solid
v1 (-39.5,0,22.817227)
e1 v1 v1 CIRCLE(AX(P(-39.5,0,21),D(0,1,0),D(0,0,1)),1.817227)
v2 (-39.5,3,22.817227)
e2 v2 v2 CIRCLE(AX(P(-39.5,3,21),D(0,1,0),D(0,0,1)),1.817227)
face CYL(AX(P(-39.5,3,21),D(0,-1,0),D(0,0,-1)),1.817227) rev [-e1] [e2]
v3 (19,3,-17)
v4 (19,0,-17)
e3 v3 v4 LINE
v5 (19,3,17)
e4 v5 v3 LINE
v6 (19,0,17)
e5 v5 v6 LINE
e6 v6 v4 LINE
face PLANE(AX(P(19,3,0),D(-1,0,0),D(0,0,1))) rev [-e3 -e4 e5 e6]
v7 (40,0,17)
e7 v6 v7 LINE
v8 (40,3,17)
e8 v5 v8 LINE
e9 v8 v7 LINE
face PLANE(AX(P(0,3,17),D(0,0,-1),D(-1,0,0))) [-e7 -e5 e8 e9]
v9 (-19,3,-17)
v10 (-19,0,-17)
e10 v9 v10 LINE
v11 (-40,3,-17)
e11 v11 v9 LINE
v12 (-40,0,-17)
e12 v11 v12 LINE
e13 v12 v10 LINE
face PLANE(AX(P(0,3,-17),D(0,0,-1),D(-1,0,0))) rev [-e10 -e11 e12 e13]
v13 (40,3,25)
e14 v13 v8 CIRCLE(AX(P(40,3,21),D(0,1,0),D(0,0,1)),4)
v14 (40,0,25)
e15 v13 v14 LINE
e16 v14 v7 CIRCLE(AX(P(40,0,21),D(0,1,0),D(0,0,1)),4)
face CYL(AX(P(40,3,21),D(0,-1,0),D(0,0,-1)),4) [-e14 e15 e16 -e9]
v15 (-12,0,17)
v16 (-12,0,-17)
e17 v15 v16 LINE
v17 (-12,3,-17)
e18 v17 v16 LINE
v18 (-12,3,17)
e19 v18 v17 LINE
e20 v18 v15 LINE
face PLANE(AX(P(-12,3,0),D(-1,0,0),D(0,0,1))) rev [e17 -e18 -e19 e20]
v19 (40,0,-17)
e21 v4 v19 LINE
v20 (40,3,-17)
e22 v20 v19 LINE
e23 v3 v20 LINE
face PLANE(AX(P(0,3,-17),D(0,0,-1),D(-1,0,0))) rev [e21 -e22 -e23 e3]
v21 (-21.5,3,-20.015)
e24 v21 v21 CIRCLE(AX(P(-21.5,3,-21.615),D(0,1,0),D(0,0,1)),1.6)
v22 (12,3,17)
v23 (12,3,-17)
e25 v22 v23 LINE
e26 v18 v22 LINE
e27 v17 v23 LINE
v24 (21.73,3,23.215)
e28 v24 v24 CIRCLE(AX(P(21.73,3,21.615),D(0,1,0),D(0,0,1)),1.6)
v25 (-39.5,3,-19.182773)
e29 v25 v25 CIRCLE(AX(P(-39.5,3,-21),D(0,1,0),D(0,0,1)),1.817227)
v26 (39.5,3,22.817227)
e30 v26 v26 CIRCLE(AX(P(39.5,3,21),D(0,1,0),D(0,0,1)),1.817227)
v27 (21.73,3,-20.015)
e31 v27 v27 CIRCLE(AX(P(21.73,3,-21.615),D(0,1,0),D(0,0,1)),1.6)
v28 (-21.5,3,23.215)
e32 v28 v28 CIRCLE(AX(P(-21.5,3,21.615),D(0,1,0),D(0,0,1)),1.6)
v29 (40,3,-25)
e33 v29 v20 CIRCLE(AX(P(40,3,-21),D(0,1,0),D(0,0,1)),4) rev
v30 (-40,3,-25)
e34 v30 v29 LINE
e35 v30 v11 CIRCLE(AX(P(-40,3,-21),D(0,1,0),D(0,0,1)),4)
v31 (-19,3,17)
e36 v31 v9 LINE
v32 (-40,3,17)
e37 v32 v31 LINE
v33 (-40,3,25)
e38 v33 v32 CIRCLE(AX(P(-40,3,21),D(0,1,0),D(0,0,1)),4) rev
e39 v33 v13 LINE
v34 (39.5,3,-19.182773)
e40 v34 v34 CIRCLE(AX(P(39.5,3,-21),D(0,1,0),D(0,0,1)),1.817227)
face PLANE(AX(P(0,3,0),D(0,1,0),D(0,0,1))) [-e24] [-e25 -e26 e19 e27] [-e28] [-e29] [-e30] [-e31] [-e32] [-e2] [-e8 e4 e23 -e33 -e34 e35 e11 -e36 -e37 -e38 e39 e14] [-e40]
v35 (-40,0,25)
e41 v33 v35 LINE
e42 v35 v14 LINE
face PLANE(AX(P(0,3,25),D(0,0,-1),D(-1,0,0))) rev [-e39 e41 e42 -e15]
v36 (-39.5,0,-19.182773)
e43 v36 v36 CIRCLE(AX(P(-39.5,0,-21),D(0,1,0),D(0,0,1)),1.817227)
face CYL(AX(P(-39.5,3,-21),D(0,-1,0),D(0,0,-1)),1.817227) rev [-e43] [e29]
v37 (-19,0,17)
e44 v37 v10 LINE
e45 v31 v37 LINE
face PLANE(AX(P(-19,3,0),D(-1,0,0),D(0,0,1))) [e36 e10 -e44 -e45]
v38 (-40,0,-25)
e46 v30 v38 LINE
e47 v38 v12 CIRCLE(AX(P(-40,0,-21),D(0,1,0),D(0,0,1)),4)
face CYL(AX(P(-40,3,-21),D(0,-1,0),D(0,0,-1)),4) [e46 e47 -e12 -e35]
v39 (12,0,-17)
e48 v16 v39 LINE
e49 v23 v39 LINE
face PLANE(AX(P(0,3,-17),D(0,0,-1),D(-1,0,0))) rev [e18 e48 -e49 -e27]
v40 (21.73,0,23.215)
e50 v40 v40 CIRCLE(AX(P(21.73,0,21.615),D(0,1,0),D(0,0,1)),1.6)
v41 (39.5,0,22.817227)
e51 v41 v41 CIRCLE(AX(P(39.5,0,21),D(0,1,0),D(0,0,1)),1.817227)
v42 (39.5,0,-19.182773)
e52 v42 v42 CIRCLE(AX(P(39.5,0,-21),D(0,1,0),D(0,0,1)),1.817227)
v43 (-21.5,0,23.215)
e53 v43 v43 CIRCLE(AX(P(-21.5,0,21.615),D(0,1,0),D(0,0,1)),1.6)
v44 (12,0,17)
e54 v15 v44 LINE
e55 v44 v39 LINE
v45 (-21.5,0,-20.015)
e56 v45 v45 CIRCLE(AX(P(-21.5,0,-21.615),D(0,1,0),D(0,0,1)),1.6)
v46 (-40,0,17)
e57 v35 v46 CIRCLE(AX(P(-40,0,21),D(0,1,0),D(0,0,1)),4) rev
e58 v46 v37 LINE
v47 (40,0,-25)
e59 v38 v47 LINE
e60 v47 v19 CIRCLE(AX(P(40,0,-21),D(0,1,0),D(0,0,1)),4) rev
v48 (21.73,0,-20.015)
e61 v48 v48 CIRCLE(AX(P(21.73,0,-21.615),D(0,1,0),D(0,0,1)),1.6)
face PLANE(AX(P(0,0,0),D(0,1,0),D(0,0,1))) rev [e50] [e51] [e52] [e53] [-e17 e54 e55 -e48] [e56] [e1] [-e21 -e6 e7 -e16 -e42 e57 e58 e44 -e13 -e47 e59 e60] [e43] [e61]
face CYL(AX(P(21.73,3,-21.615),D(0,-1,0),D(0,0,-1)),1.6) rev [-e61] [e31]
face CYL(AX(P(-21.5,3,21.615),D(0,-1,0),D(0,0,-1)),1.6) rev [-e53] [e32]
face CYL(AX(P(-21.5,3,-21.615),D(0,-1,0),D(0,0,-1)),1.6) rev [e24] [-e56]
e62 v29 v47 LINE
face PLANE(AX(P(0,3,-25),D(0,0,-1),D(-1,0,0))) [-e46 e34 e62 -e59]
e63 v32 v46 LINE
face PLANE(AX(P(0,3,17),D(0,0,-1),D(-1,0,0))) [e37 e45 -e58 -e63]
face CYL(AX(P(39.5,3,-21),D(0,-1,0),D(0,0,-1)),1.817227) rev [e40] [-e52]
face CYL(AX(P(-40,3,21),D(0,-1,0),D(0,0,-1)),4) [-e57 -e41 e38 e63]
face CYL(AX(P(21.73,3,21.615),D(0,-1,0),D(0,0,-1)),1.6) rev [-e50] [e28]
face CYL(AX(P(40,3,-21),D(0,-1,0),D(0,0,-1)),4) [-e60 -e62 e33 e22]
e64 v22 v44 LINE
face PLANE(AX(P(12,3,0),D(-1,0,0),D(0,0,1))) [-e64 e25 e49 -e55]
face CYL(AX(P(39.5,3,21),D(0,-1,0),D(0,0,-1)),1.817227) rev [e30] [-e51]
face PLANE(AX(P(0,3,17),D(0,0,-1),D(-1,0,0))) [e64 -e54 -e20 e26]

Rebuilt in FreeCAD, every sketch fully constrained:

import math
import FreeCAD as App
import Part
import Sketcher
from FreeCAD import Vector
Q = App.Units.Quantity


def add_polygon(sketch, points):
    """Adds a closed chain of lines whose ends are joined by coincident constraints."""
    first, n = sketch.GeometryCount, len(points)
    for a, b in zip(points, points[1:] + points[:1]):
        sketch.addGeometry(Part.LineSegment(App.Vector(*a, 0), App.Vector(*b, 0)), False)
    for i in range(n):
        sketch.addConstraint(Sketcher.Constraint("Coincident", first + i, 2, first + (i + 1) % n, 1))

doc = App.newDocument("Part")
body = doc.addObject("PartDesign::Body", "Body")

sketch1 = body.newObject("Sketcher::SketchObject", "Sketch")
sketch1.AttachmentSupport = (doc.getObject("XZ_Plane"), [""])
sketch1.MapMode = "FlatFace"
sketch1.addGeometry(Part.LineSegment(Vector(19, 17, 0), Vector(19, -17, 0)), False)
sketch1.addGeometry(Part.LineSegment(Vector(19, -17, 0), Vector(40, -17, 0)), False)
sketch1.addGeometry(Part.ArcOfCircle(Part.Circle(Vector(40, -21, 0), Vector(0, 0, 1), 4), math.radians(0), math.radians(90)), False)
sketch1.addGeometry(Part.ArcOfCircle(Part.Circle(Vector(40, -21, 0), Vector(0, 0, 1), 4), math.radians(-90), math.radians(0)), False)
sketch1.addGeometry(Part.LineSegment(Vector(40, -25, 0), Vector(-40, -25, 0)), False)
sketch1.addGeometry(Part.ArcOfCircle(Part.Circle(Vector(-40, -21, 0), Vector(0, 0, 1), 4), math.radians(90), math.radians(270)), False)
sketch1.addGeometry(Part.LineSegment(Vector(-40, -17, 0), Vector(-19, -17, 0)), False)
sketch1.addGeometry(Part.LineSegment(Vector(-19, -17, 0), Vector(-19, 17, 0)), False)
sketch1.addGeometry(Part.LineSegment(Vector(-19, 17, 0), Vector(-40, 17, 0)), False)
sketch1.addGeometry(Part.ArcOfCircle(Part.Circle(Vector(-40, 21, 0), Vector(0, 0, 1), 4), math.radians(90), math.radians(270)), False)
sketch1.addGeometry(Part.LineSegment(Vector(-40, 25, 0), Vector(40, 25, 0)), False)
sketch1.addGeometry(Part.ArcOfCircle(Part.Circle(Vector(40, 21, 0), Vector(0, 0, 1), 4), math.radians(0), math.radians(90)), False)
sketch1.addGeometry(Part.ArcOfCircle(Part.Circle(Vector(40, 21, 0), Vector(0, 0, 1), 4), math.radians(-90), math.radians(0)), False)
sketch1.addGeometry(Part.LineSegment(Vector(40, 17, 0), Vector(19, 17, 0)), False)
sketch1.addGeometry(Part.Circle(Vector(21.73, 21.615, 0), Vector(0, 0, 1), 1.6), False)
sketch1.addGeometry(Part.Circle(Vector(39.5, 21, 0), Vector(0, 0, 1), 1.817227), False)
add_polygon(sketch1, [(12, 17), (-12, 17), (-12, -17), (12, -17)])
sketch1.addGeometry(Part.Circle(Vector(21.73, -21.615, 0), Vector(0, 0, 1), 1.6), False)
sketch1.addGeometry(Part.Circle(Vector(39.5, -21, 0), Vector(0, 0, 1), 1.817227), False)
sketch1.addGeometry(Part.Circle(Vector(-21.5, -21.615, 0), Vector(0, 0, 1), 1.6), False)
sketch1.addGeometry(Part.Circle(Vector(-39.5, -21, 0), Vector(0, 0, 1), 1.817227), False)
sketch1.addGeometry(Part.Circle(Vector(-39.5, 21, 0), Vector(0, 0, 1), 1.817227), False)
sketch1.addGeometry(Part.Circle(Vector(-21.5, 21.615, 0), Vector(0, 0, 1), 1.6), False)
sketch1.addConstraint(Sketcher.Constraint("Coincident", 0, 2, 1, 1))
sketch1.addConstraint(Sketcher.Constraint("Tangent", 1, 2, 2, 2))
sketch1.addConstraint(Sketcher.Constraint("Tangent", 2, 1, 3, 2))
sketch1.addConstraint(Sketcher.Constraint("Tangent", 3, 1, 4, 1))
sketch1.addConstraint(Sketcher.Constraint("Tangent", 4, 2, 5, 2))
sketch1.addConstraint(Sketcher.Constraint("Tangent", 5, 1, 6, 1))
sketch1.addConstraint(Sketcher.Constraint("Coincident", 6, 2, 7, 1))
sketch1.addConstraint(Sketcher.Constraint("Coincident", 7, 2, 8, 1))
sketch1.addConstraint(Sketcher.Constraint("Tangent", 8, 2, 9, 2))
sketch1.addConstraint(Sketcher.Constraint("Tangent", 9, 1, 10, 1))
sketch1.addConstraint(Sketcher.Constraint("Tangent", 10, 2, 11, 2))
sketch1.addConstraint(Sketcher.Constraint("Tangent", 11, 1, 12, 2))
sketch1.addConstraint(Sketcher.Constraint("Tangent", 12, 1, 13, 1))
sketch1.addConstraint(Sketcher.Constraint("Coincident", 13, 2, 0, 1))
sketch1.addConstraint(Sketcher.Constraint("Vertical", 0))
sketch1.addConstraint(Sketcher.Constraint("Horizontal", 1))
sketch1.addConstraint(Sketcher.Constraint("Horizontal", 4))
sketch1.addConstraint(Sketcher.Constraint("Horizontal", 6))
sketch1.addConstraint(Sketcher.Constraint("Vertical", 7))
sketch1.addConstraint(Sketcher.Constraint("Horizontal", 8))
sketch1.addConstraint(Sketcher.Constraint("Horizontal", 10))
sketch1.addConstraint(Sketcher.Constraint("Horizontal", 13))
sketch1.addConstraint(Sketcher.Constraint("Horizontal", 16))
sketch1.addConstraint(Sketcher.Constraint("Vertical", 17))
sketch1.addConstraint(Sketcher.Constraint("Horizontal", 18))
sketch1.addConstraint(Sketcher.Constraint("Vertical", 19))
sketch1.addConstraint(Sketcher.Constraint("Equal", 2, 3))
sketch1.addConstraint(Sketcher.Constraint("Equal", 3, 5))
sketch1.addConstraint(Sketcher.Constraint("Equal", 5, 9))
sketch1.addConstraint(Sketcher.Constraint("Equal", 9, 11))
sketch1.addConstraint(Sketcher.Constraint("Equal", 11, 12))
sketch1.addConstraint(Sketcher.Constraint("Equal", 14, 20))
sketch1.addConstraint(Sketcher.Constraint("Equal", 15, 21))
sketch1.addConstraint(Sketcher.Constraint("Equal", 20, 22))
sketch1.addConstraint(Sketcher.Constraint("Equal", 21, 23))
sketch1.addConstraint(Sketcher.Constraint("Equal", 23, 24))
sketch1.addConstraint(Sketcher.Constraint("Equal", 22, 25))
sketch1.addConstraint(Sketcher.Constraint("Symmetric", 2, 3, 9, 3, -1, 1))
sketch1.addConstraint(Sketcher.Constraint("Symmetric", 15, 3, 23, 3, -1, 1))
sketch1.addConstraint(Sketcher.Constraint("Symmetric", 21, 3, 24, 3, -1, 1))
sketch1.addConstraint(Sketcher.Constraint("Symmetric", 16, 2, 18, 2, -1, 1))
sketch1.addConstraint(Sketcher.Constraint("Symmetric", 21, 3, 23, 3, -2))
sketch1.addConstraint(Sketcher.Constraint("Symmetric", 14, 3, 20, 3, -1))
sketch1.addConstraint(Sketcher.Constraint("Symmetric", 22, 3, 25, 3, -1))
sketch1.addConstraint(Sketcher.Constraint("Symmetric", 2, 1, 11, 1, -1))
sketch1.addConstraint(Sketcher.Constraint("Horizontal", 12, 3, 15, 3))
sketch1.addConstraint(Sketcher.Constraint("Horizontal", 20, 3, 22, 3))
sketch1.addConstraint(Sketcher.Constraint("Horizontal", 23, 3, 2, 1))
sketch1.addConstraint(Sketcher.Constraint("Horizontal", 13, 2, 16, 2))
sketch1.addConstraint(Sketcher.Constraint("Vertical", 5, 3, 9, 3))
sketch1.addConstraint(Sketcher.Constraint("Equal", 1, 6))
sketch1.addConstraint(Sketcher.Constraint("Radius", 2, Q("4 mm")))
sketch1.addConstraint(Sketcher.Constraint("Diameter", 14, Q("3.2 mm")))
sketch1.addConstraint(Sketcher.Constraint("DistanceX", 1, 1, 1, 2, Q("21 mm")))
sketch1.addConstraint(Sketcher.Constraint("DistanceX", 4, 2, 4, 1, Q("80 mm")))
sketch1.addConstraint(Sketcher.Constraint("DistanceX", 16, 2, 16, 1, Q("24 mm")))
sketch1.addConstraint(Sketcher.Constraint("DistanceY", 0, 2, 0, 1, Q("34 mm")))
sketch1.addConstraint(Sketcher.Constraint("DistanceX", 22, 3, 21, 3, Q("61 mm")))
sketch1.addConstraint(Sketcher.Constraint("DistanceX", 23, 3, 22, 3, Q("18 mm")))
sketch1.addConstraint(Sketcher.Constraint("DistanceX", -1, 1, 14, 3, Q("21.73 mm")))
sketch1.addConstraint(Sketcher.Constraint("DistanceY", 20, 3, 14, 3, Q("43.23 mm")))
sketch1.addConstraint(Sketcher.Constraint("Diameter", 15, Q("3.634454 mm")))
pad1 = body.newObject("PartDesign::Pad", "Pad")
pad1.Profile = sketch1
pad1.Length = 3
pad1.Reversed = True

doc.recompute()
